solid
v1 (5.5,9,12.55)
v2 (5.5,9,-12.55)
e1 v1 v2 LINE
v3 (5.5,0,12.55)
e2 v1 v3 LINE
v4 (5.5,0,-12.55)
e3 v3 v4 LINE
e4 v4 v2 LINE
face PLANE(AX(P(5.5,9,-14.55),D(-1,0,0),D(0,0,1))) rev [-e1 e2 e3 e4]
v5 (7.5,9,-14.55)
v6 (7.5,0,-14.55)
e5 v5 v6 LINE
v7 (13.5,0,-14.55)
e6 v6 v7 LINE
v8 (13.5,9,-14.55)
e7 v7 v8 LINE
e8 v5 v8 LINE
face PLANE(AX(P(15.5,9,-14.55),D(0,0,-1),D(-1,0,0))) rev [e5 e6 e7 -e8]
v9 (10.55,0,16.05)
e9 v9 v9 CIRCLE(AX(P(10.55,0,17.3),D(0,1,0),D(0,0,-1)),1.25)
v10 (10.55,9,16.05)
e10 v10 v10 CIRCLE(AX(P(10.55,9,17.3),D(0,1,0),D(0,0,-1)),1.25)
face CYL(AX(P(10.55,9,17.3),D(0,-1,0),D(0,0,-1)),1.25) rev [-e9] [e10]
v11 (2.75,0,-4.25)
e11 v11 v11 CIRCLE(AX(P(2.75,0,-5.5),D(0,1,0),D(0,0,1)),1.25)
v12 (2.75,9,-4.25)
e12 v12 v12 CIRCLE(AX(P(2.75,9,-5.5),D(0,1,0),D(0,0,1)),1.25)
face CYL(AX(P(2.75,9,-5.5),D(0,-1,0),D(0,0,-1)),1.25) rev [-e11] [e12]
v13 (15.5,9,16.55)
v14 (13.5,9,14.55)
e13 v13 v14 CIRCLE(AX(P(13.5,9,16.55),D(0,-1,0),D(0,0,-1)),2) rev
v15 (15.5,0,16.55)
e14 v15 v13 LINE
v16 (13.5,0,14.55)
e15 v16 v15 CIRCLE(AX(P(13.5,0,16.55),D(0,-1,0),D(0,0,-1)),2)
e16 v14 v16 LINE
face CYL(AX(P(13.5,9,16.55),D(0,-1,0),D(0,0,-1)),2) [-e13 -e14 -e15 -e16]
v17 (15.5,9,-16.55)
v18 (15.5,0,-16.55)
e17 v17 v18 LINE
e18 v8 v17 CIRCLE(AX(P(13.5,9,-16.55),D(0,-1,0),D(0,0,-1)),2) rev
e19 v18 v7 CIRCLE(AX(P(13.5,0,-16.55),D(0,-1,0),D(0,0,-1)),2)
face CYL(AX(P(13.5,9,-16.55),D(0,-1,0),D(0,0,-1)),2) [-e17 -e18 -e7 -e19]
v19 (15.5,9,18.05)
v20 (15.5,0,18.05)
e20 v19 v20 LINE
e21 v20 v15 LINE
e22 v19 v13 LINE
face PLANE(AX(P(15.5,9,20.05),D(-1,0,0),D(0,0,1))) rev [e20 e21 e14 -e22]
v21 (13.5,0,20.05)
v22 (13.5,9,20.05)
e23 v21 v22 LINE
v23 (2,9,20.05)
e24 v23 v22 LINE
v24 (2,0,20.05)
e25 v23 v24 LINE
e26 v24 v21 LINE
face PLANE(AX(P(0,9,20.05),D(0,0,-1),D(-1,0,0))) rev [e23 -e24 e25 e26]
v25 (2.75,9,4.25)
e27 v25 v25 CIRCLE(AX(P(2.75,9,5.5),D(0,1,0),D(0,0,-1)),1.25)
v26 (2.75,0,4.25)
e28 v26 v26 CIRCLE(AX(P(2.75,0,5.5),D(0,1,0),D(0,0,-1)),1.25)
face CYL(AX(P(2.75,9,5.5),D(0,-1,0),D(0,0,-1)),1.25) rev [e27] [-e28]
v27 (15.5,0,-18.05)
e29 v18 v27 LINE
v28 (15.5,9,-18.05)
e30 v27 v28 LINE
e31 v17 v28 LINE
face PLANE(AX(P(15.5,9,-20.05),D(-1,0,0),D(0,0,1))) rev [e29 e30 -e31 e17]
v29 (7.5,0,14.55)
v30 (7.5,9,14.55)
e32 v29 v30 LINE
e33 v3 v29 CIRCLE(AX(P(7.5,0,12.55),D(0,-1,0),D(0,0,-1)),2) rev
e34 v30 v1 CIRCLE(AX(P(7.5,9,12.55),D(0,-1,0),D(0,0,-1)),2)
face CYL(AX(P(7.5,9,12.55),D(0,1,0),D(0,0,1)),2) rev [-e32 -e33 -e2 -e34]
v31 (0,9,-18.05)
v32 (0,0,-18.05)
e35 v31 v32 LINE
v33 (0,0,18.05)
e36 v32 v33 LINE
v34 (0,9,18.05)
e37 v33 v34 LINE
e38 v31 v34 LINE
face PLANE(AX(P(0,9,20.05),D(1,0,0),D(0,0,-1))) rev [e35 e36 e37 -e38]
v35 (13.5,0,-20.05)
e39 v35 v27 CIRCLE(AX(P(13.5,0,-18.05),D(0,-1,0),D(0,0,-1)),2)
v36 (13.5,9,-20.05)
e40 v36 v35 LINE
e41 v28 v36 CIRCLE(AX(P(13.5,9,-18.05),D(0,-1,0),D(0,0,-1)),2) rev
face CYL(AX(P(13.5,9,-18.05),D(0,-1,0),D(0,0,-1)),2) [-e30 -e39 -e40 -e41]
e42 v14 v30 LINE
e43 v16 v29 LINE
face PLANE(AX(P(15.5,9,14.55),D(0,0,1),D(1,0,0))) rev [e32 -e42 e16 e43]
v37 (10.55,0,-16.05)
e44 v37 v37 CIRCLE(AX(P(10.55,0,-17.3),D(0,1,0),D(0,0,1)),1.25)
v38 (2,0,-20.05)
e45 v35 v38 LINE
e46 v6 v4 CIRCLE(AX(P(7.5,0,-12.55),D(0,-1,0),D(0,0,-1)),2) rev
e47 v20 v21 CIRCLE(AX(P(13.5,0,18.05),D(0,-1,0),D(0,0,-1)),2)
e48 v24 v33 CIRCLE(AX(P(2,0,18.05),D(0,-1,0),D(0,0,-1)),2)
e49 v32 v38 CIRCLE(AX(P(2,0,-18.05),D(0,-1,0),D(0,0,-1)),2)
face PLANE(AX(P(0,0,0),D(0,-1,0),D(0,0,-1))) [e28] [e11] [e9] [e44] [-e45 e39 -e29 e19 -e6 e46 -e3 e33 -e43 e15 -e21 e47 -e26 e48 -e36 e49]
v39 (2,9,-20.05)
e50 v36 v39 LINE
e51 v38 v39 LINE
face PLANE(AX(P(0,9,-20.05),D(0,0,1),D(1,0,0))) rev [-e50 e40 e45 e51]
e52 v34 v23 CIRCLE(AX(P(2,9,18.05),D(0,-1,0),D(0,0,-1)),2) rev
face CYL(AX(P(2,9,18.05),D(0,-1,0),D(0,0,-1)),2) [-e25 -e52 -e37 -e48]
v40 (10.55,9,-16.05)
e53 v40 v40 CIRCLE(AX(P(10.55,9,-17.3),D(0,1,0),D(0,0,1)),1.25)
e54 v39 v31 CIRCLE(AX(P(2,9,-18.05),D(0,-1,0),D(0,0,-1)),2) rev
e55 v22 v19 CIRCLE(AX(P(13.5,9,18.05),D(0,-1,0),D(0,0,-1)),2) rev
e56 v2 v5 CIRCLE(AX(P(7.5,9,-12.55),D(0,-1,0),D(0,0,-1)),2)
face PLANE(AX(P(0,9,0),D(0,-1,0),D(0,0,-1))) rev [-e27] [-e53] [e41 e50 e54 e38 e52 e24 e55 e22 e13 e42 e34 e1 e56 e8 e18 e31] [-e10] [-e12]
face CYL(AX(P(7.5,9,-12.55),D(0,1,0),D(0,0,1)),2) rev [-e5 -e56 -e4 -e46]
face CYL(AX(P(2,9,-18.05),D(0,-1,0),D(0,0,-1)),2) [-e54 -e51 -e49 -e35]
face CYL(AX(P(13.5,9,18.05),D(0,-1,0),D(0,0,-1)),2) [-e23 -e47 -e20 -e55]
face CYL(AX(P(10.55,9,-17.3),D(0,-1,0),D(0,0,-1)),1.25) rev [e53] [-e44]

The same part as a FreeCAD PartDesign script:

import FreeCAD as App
import Part
import Sketcher

V = App.Vector


def edges_at(feature, points):
    """Names of the edges that pass closest to the given points."""
    edges = feature.Shape.Edges
    near = lambda p: min(range(len(edges)), key=lambda i: edges[i].distToShape(Part.Vertex(*p))[0])
    return sorted({f"Edge{near(p) + 1}" for p in points})


def add_polygon(sketch, points):
    """Adds a closed chain of lines whose ends are joined by coincident constraints."""
    first, n = sketch.GeometryCount, len(points)
    for a, b in zip(points, points[1:] + points[:1]):
        sketch.addGeometry(Part.LineSegment(App.Vector(*a, 0), App.Vector(*b, 0)), False)
    for i in range(n):
        sketch.addConstraint(Sketcher.Constraint("Coincident", first + i, 2, first + (i + 1) % n, 1))

doc = App.newDocument("Part")
params = doc.addObject("Spreadsheet::Sheet", "Params")
for row, (alias, value) in enumerate([
    ("sketch1_diameter", "2.5 mm"),
    ("sketch1_width", "10 mm"),
    ("sketch1_width2", "15.5 mm"),
    ("sketch1_height", "40.1 mm"),
    ("sketch1_height2", "5.5 mm"),
    ("pad1_length", "9 mm"),
    ("fillet_radius", "2 mm"),
], start=1):
    params.set(f"A{row}", alias)
    params.set(f"B{row}", "=" + value)
    params.setAlias(f"B{row}", alias)

body = doc.addObject("PartDesign::Body", "Body")

# Sketch on XZ plane
sketch1 = body.newObject("Sketcher::SketchObject", "Sketch")
sketch1.AttachmentSupport = (doc.getObject("XZ_Plane"), [""])
sketch1.MapMode = "FlatFace"
add_polygon(sketch1, [(0, -20.1), (0, 20.1), (15.5, 20.1), (15.5, 14.6), (5.5, 14.6), (5.5, -14.6), (15.5, -14.6), (15.5, -20.1)])  # lines 0-7
sketch1.addGeometry(Part.Circle(V(10.6, 17.3, 0), V(0, 0, 1), 1.2), False)  # 8
sketch1.addGeometry(Part.Circle(V(2.8, 5.5, 0), V(0, 0, 1), 1.2), False)  # 9
sketch1.addGeometry(Part.Circle(V(10.6, -17.3, 0), V(0, 0, 1), 1.2), False)  # 10
sketch1.addGeometry(Part.Circle(V(2.8, -5.5, 0), V(0, 0, 1), 1.2), False)  # 11
sketch1.addConstraint(Sketcher.Constraint("Vertical", 0))
sketch1.addConstraint(Sketcher.Constraint("Horizontal", 1))
sketch1.addConstraint(Sketcher.Constraint("Vertical", 2))
sketch1.addConstraint(Sketcher.Constraint("Horizontal", 3))
sketch1.addConstraint(Sketcher.Constraint("Vertical", 4))
sketch1.addConstraint(Sketcher.Constraint("Horizontal", 5))
sketch1.addConstraint(Sketcher.Constraint("Vertical", 6))
sketch1.addConstraint(Sketcher.Constraint("Horizontal", 7))
sketch1.addConstraint(Sketcher.Constraint("Equal", 8, 9))
sketch1.addConstraint(Sketcher.Constraint("Equal", 9, 10))
sketch1.addConstraint(Sketcher.Constraint("Equal", 10, 11))
sketch1.addConstraint(Sketcher.Constraint("Symmetric", 0, 2, 7, 2, -1, 1))
sketch1.addConstraint(Sketcher.Constraint("Symmetric", 8, 3, 10, 3, -1))
sketch1.addConstraint(Sketcher.Constraint("Symmetric", 9, 3, 11, 3, -1))
sketch1.addConstraint(Sketcher.Constraint("Symmetric", 2, 2, 5, 2, -1))
sketch1.addConstraint(Sketcher.Constraint("Diameter", 8, 2.5))
sketch1.addConstraint(Sketcher.Constraint("DistanceX", 3, 2, 3, 1, 10.0))
sketch1.addConstraint(Sketcher.Constraint("DistanceX", 1, 1, 1, 2, 15.5))
sketch1.addConstraint(Sketcher.Constraint("DistanceY", 0, 1, 0, 2, 40.1))
sketch1.addConstraint(Sketcher.Constraint("DistanceY", 2, 2, 2, 1, 5.5))
sketch1.addConstraint(Sketcher.Constraint("DistanceY", 11, 3, 9, 3, 11.0))
sketch1.addConstraint(Sketcher.Constraint("DistanceY", -1, 1, 8, 3, 17.3))
sketch1.addConstraint(Sketcher.Constraint("DistanceX", 9, 3, 8, 3, 7.8))
sketch1.addConstraint(Sketcher.Constraint("DistanceX", -1, 1, 8, 3, 10.55))
sketch1.setExpression("Constraints[23]", "Params.sketch1_diameter")
sketch1.setExpression("Constraints[24]", "Params.sketch1_width")
sketch1.setExpression("Constraints[25]", "Params.sketch1_width2")
sketch1.setExpression("Constraints[26]", "Params.sketch1_height")
sketch1.setExpression("Constraints[27]", "Params.sketch1_height2")
pad1 = body.newObject("PartDesign::Pad", "Pad")
pad1.Profile = sketch1
pad1.setExpression("Length", "Params.pad1_length")
pad1.Reversed = True
doc.recompute()

fillet = body.newObject("PartDesign::Fillet", "Fillet")
fillet.Base = (pad1, edges_at(pad1, [
    (15.5, 4.5, -20.05),
    (15.5, 4.5, -14.55),
    (5.5, 4.5, -14.55),
    (5.5, 4.5, 14.55),
    (15.5, 4.5, 14.55),
    (15.5, 4.5, 20.05),
    (0, 4.5, 20.05),
    (0, 4.5, -20.05),
]))
fillet.setExpression("Radius", "Params.fillet_radius")

doc.recompute()
